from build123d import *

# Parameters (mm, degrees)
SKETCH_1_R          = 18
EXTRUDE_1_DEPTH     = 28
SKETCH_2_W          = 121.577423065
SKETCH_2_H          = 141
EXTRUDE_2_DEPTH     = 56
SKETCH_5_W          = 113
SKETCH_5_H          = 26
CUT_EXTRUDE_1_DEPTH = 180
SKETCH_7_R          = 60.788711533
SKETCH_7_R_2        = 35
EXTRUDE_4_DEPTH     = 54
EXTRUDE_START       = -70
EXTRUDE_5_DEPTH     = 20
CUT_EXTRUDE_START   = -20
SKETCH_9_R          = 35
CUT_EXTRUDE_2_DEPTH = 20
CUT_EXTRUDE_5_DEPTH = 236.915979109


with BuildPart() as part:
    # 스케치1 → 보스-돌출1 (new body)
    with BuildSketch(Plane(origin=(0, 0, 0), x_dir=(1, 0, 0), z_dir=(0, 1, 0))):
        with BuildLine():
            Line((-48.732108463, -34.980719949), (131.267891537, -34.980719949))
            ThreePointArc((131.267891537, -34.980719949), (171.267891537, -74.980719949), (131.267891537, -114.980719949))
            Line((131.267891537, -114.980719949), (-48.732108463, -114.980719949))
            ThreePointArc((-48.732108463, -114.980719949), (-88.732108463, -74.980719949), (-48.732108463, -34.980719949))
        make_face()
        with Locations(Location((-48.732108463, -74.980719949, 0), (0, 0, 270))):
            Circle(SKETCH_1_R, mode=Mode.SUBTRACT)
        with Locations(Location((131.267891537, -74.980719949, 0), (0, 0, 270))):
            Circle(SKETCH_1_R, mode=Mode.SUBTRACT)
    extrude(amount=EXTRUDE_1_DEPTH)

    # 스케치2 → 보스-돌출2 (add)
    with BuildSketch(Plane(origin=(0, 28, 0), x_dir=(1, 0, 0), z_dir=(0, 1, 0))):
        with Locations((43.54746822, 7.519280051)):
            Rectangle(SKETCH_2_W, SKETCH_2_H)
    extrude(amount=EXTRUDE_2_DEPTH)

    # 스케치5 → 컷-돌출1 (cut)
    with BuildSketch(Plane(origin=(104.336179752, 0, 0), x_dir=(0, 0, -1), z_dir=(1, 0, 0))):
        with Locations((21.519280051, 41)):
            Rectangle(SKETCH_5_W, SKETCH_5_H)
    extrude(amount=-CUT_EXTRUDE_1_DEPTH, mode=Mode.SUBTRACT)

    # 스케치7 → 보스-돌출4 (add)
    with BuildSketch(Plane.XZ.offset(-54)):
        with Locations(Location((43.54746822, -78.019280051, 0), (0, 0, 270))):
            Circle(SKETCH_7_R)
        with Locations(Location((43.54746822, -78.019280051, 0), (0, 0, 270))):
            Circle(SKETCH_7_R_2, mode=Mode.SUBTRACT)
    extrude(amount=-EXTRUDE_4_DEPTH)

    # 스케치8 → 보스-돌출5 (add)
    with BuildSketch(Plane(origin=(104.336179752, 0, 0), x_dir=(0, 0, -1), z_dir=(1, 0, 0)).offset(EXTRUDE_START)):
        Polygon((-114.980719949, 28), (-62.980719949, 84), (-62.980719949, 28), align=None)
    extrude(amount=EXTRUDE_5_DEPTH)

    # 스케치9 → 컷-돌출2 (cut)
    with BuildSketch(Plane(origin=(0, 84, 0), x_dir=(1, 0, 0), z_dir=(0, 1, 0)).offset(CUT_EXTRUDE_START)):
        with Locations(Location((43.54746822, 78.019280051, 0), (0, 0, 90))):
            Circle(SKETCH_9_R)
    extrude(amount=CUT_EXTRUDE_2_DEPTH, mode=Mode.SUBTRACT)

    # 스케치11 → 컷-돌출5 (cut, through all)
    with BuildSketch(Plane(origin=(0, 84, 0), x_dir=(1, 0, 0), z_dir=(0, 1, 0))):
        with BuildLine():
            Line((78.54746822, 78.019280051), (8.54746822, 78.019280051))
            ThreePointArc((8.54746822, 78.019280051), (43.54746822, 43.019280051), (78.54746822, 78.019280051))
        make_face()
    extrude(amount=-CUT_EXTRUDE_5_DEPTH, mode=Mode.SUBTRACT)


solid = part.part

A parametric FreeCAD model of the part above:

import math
import FreeCAD as App
import Part
import Sketcher

V = App.Vector
Q = App.Units.Quantity


def add_polygon(sketch, points):
    """Adds a closed chain of lines whose ends are joined by coincident constraints."""
    first, n = sketch.GeometryCount, len(points)
    for a, b in zip(points, points[1:] + points[:1]):
        sketch.addGeometry(Part.LineSegment(App.Vector(*a, 0), App.Vector(*b, 0)), False)
    for i in range(n):
        sketch.addConstraint(Sketcher.Constraint("Coincident", first + i, 2, first + (i + 1) % n, 1))

doc = App.newDocument("Part")
body = doc.addObject("PartDesign::Body", "Body")

# Sketch on XZ plane
sketch1 = body.newObject("Sketcher::SketchObject", "Sketch")
sketch1.AttachmentSupport = (doc.getObject("XZ_Plane"), [""])
sketch1.MapMode = "FlatFace"
sketch1.addGeometry(Part.LineSegment(V(131.267892, 34.98072, 0), V(-48.732108, 34.98072, 0)), False)
sketch1.addGeometry(Part.ArcOfCircle(Part.Circle(V(-48.732108, 74.98072, 0), V(0, 0, 1), 40), math.radians(90), math.radians(270)), False)
sketch1.addGeometry(Part.LineSegment(V(-48.732108, 114.98072, 0), V(131.267892, 114.98072, 0)), False)
sketch1.addGeometry(Part.ArcOfCircle(Part.Circle(V(131.267892, 74.98072, 0), V(0, 0, 1), 40), math.radians(-90), math.radians(90)), False)
sketch1.addGeometry(Part.Circle(V(131.267892, 74.98072, 0), V(0, 0, 1), 18), False)
sketch1.addGeometry(Part.Circle(V(-48.732108, 74.98072, 0), V(0, 0, 1), 18), False)
sketch1.addConstraint(Sketcher.Constraint("Tangent", 0, 2, 1, 2))
sketch1.addConstraint(Sketcher.Constraint("Tangent", 1, 1, 2, 1))
sketch1.addConstraint(Sketcher.Constraint("Tangent", 2, 2, 3, 2))
sketch1.addConstraint(Sketcher.Constraint("Tangent", 3, 1, 0, 1))
sketch1.addConstraint(Sketcher.Constraint("Horizontal", 0))
sketch1.addConstraint(Sketcher.Constraint("Horizontal", 2))
sketch1.addConstraint(Sketcher.Constraint("Coincident", 4, 3, 3, 3))
sketch1.addConstraint(Sketcher.Constraint("Coincident", 5, 3, 1, 3))
sketch1.addConstraint(Sketcher.Constraint("Equal", 4, 5))
sketch1.addConstraint(Sketcher.Constraint("Diameter", 4, Q("36 mm")))
sketch1.addConstraint(Sketcher.Constraint("Radius", 1, Q("40 mm")))
sketch1.addConstraint(Sketcher.Constraint("DistanceX", 0, 2, 0, 1, Q("180 mm")))
sketch1.addConstraint(Sketcher.Constraint("DistanceX", 1, 3, -1, 1, Q("48.732108 mm")))
sketch1.addConstraint(Sketcher.Constraint("DistanceY", -1, 1, 1, 3, Q("74.98072 mm")))
pad1 = body.newObject("PartDesign::Pad", "Pad")
pad1.Profile = sketch1
pad1.Length = 28
pad1.Reversed = True

# Sketch on XZ plane
sketch2 = body.newObject("Sketcher::SketchObject", "Sketch001")
sketch2.AttachmentSupport = (doc.getObject("XZ_Plane"), [""])
sketch2.MapMode = "FlatFace"
sketch2.AttachmentOffset = App.Placement(V(0, 0, -28), App.Rotation())
add_polygon(sketch2, [(-17.241243, -78.01928), (-17.241243, 62.98072), (104.33618, 62.98072), (104.33618, -78.01928)])  # lines 0-3
sketch2.addConstraint(Sketcher.Constraint("Vertical", 0))
sketch2.addConstraint(Sketcher.Constraint("Horizontal", 1))
sketch2.addConstraint(Sketcher.Constraint("Vertical", 2))
sketch2.addConstraint(Sketcher.Constraint("Horizontal", 3))
sketch2.addConstraint(Sketcher.Constraint("DistanceY", 0, 1, 0, 2, Q("141 mm")))
sketch2.addConstraint(Sketcher.Constraint("DistanceX", 1, 1, 1, 2, Q("121.577423 mm")))
sketch2.addConstraint(Sketcher.Constraint("DistanceY", -1, 1, 0, 2, Q("62.98072 mm")))
sketch2.addConstraint(Sketcher.Constraint("DistanceX", -1, 1, 1, 2, Q("104.33618 mm")))
pad2 = body.newObject("PartDesign::Pad", "Pad001")
pad2.Profile = sketch2
pad2.Length = 56
pad2.Reversed = True

# Sketch on YZ plane
sketch3 = body.newObject("Sketcher::SketchObject", "Sketch002")
sketch3.AttachmentSupport = (doc.getObject("YZ_Plane"), [""])
sketch3.MapMode = "FlatFace"
sketch3.AttachmentOffset = App.Placement(V(0, 0, 104.33618), App.Rotation())
add_polygon(sketch3, [(54, 34.98072), (28, 34.98072), (28, -78.01928), (54, -78.01928)])  # lines 0-3
sketch3.addConstraint(Sketcher.Constraint("Horizontal", 0))
sketch3.addConstraint(Sketcher.Constraint("Vertical", 1))
sketch3.addConstraint(Sketcher.Constraint("Horizontal", 2))
sketch3.addConstraint(Sketcher.Constraint("Vertical", 3))
sketch3.addConstraint(Sketcher.Constraint("DistanceX", 0, 2, 0, 1, Q("26 mm")))
sketch3.addConstraint(Sketcher.Constraint("DistanceY", 1, 2, 1, 1, Q("113 mm")))
sketch3.addConstraint(Sketcher.Constraint("DistanceX", -1, 1, 0, 2, Q("28 mm")))
sketch3.addConstraint(Sketcher.Constraint("DistanceY", -1, 1, 0, 2, Q("34.98072 mm")))
pocket1 = body.newObject("PartDesign::Pocket", "Pocket")
pocket1.Profile = sketch3
pocket1.Length = 180

# Sketch on XZ plane
sketch4 = body.newObject("Sketcher::SketchObject", "Sketch003")
sketch4.AttachmentSupport = (doc.getObject("XZ_Plane"), [""])
sketch4.MapMode = "FlatFace"
sketch4.AttachmentOffset = App.Placement(V(0, 0, -54), App.Rotation())
sketch4.addGeometry(Part.Circle(V(43.547468, -78.01928, 0), V(0, 0, 1), 60.788712), False)
sketch4.addGeometry(Part.Circle(V(43.547468, -78.01928, 0), V(0, 0, 1), 35), False)
sketch4.addConstraint(Sketcher.Constraint("Coincident", 1, 3, 0, 3))
sketch4.addConstraint(Sketcher.Constraint("Diameter", 1, Q("70 mm")))
sketch4.addConstraint(Sketcher.Constraint("Diameter", 0, Q("121.577423 mm")))
sketch4.addConstraint(Sketcher.Constraint("DistanceX", -1, 1, 0, 3, Q("43.547468 mm")))
sketch4.addConstraint(Sketcher.Constraint("DistanceY", 0, 3, -1, 1, Q("78.01928 mm")))
pad3 = body.newObject("PartDesign::Pad", "Pad002")
pad3.Profile = sketch4
pad3.Length = 54
pad3.Reversed = True

# Sketch on YZ plane
sketch5 = body.newObject("Sketcher::SketchObject", "Sketch004")
sketch5.AttachmentSupport = (doc.getObject("YZ_Plane"), [""])
sketch5.MapMode = "FlatFace"
sketch5.AttachmentOffset = App.Placement(V(0, 0, 34.33618), App.Rotation())
add_polygon(sketch5, [(84, 62.98072), (28, 114.98072), (28, 62.98072)])  # lines 0-2
sketch5.addConstraint(Sketcher.Constraint("Vertical", 1))
sketch5.addConstraint(Sketcher.Constraint("Horizontal", 2))
sketch5.addConstraint(Sketcher.Constraint("DistanceX", 2, 1, 2, 2, Q("56 mm")))
sketch5.addConstraint(Sketcher.Constraint("DistanceY", 1, 2, 1, 1, Q("52 mm")))
sketch5.addConstraint(Sketcher.Constraint("DistanceX", -1, 1, 0, 2, Q("28 mm")))
sketch5.addConstraint(Sketcher.Constraint("DistanceY", -1, 1, 0, 2, Q("114.98072 mm")))
pad4 = body.newObject("PartDesign::Pad", "Pad003")
pad4.Profile = sketch5
pad4.Length = 20

# Sketch on XZ plane
sketch6 = body.newObject("Sketcher::SketchObject", "Sketch005")
sketch6.AttachmentSupport = (doc.getObject("XZ_Plane"), [""])
sketch6.MapMode = "FlatFace"
sketch6.AttachmentOffset = App.Placement(V(0, 0, -64), App.Rotation())
sketch6.addGeometry(Part.Circle(V(43.547468, -78.01928, 0), V(0, 0, 1), 35), False)
sketch6.addConstraint(Sketcher.Constraint("Diameter", 0, Q("70 mm")))
sketch6.addConstraint(Sketcher.Constraint("DistanceX", -1, 1, 0, 3, Q("43.547468 mm")))
sketch6.addConstraint(Sketcher.Constraint("DistanceY", 0, 3, -1, 1, Q("78.01928 mm")))
pocket2 = body.newObject("PartDesign::Pocket", "Pocket001")
pocket2.Profile = sketch6
pocket2.Length = 20

# Sketch on XZ plane
sketch7 = body.newObject("Sketcher::SketchObject", "Sketch006")
sketch7.AttachmentSupport = (doc.getObject("XZ_Plane"), [""])
sketch7.MapMode = "FlatFace"
sketch7.AttachmentOffset = App.Placement(V(0, 0, -84), App.Rotation())
sketch7.addGeometry(Part.LineSegment(V(78.547468, -78.01928, 0), V(8.547468, -78.01928, 0)), False)
sketch7.addGeometry(Part.ArcOfCircle(Part.Circle(V(43.547468, -78.01928, 0), V(0, 0, 1), 35), math.radians(0), math.radians(180)), False)
sketch7.addConstraint(Sketcher.Constraint("Coincident", 0, 1, 1, 1))
sketch7.addConstraint(Sketcher.Constraint("Coincident", 1, 2, 0, 2))
sketch7.addConstraint(Sketcher.Constraint("Horizontal", 0))
sketch7.addConstraint(Sketcher.Constraint("Horizontal", 1, 3, 0, 1))
sketch7.addConstraint(Sketcher.Constraint("Radius", 1, Q("35 mm")))
sketch7.addConstraint(Sketcher.Constraint("DistanceX", -1, 1, 1, 3, Q("43.547468 mm")))
sketch7.addConstraint(Sketcher.Constraint("DistanceY", 1, 3, -1, 1, Q("78.01928 mm")))
pocket3 = body.newObject("PartDesign::Pocket", "Pocket002")
pocket3.Profile = sketch7
pocket3.Type = "ThroughAll"
pocket3.Reversed = True

doc.recompute()
